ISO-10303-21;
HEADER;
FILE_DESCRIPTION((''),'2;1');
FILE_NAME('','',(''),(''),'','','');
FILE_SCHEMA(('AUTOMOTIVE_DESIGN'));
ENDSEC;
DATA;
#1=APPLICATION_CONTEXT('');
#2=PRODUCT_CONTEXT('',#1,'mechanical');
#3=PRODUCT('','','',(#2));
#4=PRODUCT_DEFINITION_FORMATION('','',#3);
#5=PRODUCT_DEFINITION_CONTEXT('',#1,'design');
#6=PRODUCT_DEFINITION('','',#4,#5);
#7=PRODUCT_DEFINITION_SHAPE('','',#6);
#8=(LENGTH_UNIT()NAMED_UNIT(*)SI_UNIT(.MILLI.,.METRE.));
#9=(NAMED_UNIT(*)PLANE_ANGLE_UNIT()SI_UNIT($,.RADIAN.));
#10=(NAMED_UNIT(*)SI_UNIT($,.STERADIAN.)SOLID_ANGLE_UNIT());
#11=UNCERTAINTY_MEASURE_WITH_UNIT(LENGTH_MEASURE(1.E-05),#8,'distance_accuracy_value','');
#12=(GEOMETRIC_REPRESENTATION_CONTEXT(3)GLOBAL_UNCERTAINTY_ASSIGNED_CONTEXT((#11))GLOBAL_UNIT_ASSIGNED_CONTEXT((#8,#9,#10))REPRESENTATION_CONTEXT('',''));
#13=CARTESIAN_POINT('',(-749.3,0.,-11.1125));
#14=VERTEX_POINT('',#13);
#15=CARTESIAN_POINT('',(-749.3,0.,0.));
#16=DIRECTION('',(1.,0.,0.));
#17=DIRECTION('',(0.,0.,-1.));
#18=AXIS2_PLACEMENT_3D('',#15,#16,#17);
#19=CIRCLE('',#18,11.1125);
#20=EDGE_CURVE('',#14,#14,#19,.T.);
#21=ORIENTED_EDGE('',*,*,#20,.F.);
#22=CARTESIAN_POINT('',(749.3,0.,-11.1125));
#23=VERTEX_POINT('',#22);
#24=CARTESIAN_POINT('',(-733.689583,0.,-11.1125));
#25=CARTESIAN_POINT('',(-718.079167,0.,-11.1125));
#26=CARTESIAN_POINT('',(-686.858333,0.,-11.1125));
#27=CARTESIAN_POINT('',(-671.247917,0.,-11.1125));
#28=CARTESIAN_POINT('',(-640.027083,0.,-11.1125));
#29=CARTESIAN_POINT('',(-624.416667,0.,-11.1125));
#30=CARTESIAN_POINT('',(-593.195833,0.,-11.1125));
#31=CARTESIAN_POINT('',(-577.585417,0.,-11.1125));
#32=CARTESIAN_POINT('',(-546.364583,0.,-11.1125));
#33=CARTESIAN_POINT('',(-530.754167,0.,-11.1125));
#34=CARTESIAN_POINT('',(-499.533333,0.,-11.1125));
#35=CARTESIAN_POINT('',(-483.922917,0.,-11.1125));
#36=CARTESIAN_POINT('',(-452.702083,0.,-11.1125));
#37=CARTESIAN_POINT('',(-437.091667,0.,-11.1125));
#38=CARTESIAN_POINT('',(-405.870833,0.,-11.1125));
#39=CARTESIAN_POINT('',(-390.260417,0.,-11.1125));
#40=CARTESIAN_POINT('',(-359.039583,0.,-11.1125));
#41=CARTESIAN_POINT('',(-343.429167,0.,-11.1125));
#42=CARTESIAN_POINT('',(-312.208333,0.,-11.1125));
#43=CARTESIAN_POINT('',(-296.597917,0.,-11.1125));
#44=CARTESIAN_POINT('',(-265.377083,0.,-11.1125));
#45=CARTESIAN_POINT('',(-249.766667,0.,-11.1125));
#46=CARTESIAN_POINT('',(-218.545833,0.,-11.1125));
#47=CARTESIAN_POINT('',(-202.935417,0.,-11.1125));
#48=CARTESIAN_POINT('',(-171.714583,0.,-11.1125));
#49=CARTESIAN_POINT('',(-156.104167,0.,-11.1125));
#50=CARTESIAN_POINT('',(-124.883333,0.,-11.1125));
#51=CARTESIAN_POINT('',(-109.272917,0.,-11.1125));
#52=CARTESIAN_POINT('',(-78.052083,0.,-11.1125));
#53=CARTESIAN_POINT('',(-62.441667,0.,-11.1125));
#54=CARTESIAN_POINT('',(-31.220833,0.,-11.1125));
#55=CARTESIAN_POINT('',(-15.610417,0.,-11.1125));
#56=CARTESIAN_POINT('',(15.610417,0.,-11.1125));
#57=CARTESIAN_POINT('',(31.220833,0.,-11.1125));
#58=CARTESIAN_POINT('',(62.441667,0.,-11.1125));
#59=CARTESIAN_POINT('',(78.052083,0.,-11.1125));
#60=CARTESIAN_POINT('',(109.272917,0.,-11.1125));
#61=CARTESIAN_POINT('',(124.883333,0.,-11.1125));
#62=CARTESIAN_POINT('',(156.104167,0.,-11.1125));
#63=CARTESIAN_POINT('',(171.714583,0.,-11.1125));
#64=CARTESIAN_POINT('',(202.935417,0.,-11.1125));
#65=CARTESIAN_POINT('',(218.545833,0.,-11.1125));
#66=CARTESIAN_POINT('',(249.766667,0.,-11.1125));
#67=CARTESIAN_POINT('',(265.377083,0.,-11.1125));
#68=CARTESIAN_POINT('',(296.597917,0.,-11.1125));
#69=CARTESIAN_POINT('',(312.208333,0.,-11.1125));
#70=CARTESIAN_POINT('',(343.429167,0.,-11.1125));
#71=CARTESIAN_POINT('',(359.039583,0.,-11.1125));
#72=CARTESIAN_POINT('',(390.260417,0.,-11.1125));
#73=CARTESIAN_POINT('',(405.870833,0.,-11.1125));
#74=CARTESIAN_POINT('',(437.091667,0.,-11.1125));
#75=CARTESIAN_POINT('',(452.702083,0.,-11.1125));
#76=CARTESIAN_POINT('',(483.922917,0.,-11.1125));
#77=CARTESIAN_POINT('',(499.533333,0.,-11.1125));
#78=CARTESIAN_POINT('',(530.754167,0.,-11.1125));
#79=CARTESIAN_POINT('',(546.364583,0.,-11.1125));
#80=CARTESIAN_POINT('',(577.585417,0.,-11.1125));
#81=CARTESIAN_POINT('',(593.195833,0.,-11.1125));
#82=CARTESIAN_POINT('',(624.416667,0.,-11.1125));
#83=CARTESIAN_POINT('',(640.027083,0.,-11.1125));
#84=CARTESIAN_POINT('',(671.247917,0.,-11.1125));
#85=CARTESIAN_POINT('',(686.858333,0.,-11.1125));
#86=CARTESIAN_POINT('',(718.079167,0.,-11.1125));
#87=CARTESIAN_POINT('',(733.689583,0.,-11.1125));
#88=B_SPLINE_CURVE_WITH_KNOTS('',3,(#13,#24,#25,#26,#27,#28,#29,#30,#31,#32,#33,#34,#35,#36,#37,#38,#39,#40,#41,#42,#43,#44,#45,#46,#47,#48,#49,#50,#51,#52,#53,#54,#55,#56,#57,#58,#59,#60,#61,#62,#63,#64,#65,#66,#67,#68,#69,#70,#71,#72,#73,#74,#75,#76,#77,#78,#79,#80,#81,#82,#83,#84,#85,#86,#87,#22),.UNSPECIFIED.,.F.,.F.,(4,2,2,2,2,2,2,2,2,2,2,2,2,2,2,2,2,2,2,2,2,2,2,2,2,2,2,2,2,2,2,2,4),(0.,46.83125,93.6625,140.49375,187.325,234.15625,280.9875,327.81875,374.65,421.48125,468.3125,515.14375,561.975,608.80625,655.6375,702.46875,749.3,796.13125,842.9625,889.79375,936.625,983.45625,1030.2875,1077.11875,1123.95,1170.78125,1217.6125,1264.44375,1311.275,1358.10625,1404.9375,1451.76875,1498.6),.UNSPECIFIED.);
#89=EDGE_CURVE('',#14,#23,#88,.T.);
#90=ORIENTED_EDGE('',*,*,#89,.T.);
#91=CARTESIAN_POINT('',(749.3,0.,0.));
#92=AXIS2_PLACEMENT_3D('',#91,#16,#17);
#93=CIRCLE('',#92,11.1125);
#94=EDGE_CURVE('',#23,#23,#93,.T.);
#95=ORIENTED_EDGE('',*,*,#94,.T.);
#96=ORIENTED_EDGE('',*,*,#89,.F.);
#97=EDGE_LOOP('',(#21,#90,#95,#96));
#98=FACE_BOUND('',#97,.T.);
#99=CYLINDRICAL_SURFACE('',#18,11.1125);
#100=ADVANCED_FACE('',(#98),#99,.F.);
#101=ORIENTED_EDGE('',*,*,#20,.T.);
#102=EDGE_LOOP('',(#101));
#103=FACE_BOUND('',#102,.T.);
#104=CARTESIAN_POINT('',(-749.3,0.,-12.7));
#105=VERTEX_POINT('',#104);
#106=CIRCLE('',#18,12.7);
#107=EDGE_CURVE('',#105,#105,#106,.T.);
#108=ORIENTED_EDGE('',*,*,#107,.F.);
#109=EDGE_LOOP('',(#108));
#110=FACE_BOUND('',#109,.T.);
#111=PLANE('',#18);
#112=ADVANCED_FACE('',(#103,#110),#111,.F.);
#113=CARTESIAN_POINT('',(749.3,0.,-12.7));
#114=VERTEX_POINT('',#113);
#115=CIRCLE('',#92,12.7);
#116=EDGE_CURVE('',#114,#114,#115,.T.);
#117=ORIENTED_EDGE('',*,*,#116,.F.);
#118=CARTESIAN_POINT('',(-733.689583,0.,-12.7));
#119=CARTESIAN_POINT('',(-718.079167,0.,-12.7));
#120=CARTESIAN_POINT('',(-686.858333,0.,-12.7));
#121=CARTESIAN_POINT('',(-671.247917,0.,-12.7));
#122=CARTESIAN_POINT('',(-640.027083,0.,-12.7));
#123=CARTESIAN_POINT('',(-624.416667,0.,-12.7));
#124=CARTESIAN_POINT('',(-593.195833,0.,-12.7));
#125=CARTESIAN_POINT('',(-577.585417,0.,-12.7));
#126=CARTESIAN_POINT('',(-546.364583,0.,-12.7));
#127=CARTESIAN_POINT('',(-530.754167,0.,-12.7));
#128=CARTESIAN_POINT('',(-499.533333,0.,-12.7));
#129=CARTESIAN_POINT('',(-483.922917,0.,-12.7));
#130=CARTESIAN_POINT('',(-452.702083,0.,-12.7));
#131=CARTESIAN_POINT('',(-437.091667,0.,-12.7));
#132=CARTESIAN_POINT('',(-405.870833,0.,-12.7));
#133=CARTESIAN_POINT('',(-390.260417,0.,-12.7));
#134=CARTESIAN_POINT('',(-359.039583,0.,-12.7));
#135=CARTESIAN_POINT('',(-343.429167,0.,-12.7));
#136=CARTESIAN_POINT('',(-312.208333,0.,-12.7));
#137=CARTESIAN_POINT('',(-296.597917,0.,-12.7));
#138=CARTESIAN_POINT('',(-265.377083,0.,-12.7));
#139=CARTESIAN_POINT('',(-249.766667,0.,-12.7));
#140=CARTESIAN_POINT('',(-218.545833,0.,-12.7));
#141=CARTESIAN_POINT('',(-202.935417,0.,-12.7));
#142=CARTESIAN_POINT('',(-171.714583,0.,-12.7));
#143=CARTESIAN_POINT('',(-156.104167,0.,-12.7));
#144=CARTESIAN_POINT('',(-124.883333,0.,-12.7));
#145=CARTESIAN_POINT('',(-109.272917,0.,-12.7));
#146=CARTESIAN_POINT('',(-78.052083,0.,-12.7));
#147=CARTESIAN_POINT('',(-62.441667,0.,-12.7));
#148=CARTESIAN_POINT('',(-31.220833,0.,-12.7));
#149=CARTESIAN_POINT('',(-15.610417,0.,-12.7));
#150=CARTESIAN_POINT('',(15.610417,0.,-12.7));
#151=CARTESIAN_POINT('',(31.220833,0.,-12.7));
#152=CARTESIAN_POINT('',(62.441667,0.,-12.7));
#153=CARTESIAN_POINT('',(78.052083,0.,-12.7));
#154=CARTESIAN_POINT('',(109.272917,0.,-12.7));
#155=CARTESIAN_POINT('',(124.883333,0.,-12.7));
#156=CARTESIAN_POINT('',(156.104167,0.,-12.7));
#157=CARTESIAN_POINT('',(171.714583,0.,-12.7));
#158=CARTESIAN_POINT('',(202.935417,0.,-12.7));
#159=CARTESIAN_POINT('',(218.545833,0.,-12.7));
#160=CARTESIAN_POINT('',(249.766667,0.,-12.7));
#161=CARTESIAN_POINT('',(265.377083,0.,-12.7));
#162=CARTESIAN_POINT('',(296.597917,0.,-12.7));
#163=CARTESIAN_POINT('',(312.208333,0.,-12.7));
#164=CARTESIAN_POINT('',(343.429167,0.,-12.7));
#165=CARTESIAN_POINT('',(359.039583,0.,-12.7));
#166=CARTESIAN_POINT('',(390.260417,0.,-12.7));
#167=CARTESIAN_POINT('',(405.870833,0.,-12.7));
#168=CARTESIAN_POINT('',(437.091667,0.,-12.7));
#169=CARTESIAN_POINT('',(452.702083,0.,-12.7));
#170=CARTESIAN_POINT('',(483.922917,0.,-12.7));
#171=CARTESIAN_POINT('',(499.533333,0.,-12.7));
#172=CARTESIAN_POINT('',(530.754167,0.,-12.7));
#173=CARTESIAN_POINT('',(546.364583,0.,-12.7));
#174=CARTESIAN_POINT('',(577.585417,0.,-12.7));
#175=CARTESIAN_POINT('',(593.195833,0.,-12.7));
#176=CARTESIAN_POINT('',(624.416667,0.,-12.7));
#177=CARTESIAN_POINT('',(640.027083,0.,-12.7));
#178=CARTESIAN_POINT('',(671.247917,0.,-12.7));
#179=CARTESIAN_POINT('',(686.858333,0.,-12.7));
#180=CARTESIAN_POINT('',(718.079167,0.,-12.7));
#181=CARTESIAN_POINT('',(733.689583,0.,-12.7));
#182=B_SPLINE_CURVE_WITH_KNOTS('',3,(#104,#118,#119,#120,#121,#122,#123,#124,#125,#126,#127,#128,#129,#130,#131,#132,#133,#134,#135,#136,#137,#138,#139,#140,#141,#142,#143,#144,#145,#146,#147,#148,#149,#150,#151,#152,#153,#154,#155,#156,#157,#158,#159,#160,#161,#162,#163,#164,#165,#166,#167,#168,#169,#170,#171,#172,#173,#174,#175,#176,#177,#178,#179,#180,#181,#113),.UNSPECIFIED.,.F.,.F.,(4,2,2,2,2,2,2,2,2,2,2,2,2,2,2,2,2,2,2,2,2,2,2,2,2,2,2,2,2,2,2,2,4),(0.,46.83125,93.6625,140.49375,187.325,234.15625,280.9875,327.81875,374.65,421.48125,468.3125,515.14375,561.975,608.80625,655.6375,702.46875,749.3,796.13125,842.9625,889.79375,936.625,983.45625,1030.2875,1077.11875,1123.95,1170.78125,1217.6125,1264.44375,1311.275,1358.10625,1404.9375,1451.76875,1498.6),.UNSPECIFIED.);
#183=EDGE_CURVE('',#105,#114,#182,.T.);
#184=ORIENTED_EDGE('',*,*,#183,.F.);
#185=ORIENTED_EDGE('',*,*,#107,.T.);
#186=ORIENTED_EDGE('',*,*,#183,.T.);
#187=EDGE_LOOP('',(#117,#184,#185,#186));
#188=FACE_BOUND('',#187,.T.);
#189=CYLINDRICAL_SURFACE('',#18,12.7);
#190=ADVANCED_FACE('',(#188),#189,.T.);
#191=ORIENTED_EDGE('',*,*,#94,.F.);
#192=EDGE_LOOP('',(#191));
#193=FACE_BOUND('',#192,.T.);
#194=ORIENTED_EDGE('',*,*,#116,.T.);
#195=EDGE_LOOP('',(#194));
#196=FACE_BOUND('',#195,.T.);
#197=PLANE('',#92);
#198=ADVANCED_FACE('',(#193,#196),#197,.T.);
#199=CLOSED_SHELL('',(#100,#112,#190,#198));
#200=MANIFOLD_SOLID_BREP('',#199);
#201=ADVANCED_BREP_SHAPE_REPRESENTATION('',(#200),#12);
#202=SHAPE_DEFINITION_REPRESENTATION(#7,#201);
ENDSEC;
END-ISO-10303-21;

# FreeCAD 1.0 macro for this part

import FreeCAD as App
import Part
import Sketcher
Q = App.Units.Quantity

doc = App.newDocument("Part")
body = doc.addObject("PartDesign::Body", "Body")

sketch1 = body.newObject("Sketcher::SketchObject", "Sketch")
sketch1.AttachmentSupport = (doc.getObject("YZ_Plane"), [""])
sketch1.MapMode = "FlatFace"
sketch1.addGeometry(Part.Circle(App.Vector(0, 0, 0), App.Vector(0, 0, 1), 13), False)
sketch1.addGeometry(Part.Circle(App.Vector(0, 0, 0), App.Vector(0, 0, 1), 11), False)
sketch1.addConstraint(Sketcher.Constraint("Coincident", 0, 3, -1, 1))
sketch1.addConstraint(Sketcher.Constraint("Coincident", 1, 3, -1, 1))
sketch1.addConstraint(Sketcher.Constraint("Diameter", 0, Q("1 in")))
sketch1.addConstraint(Sketcher.Constraint("Diameter", 1, Q("0.875 in")))
pad1 = body.newObject("PartDesign::Pad", "Pad")
pad1.Profile = sketch1
pad1.Type = "TwoLengths"
pad1.Length = Q("29.5 in")
pad1.Length2 = Q("29.5 in")

doc.recompute()
